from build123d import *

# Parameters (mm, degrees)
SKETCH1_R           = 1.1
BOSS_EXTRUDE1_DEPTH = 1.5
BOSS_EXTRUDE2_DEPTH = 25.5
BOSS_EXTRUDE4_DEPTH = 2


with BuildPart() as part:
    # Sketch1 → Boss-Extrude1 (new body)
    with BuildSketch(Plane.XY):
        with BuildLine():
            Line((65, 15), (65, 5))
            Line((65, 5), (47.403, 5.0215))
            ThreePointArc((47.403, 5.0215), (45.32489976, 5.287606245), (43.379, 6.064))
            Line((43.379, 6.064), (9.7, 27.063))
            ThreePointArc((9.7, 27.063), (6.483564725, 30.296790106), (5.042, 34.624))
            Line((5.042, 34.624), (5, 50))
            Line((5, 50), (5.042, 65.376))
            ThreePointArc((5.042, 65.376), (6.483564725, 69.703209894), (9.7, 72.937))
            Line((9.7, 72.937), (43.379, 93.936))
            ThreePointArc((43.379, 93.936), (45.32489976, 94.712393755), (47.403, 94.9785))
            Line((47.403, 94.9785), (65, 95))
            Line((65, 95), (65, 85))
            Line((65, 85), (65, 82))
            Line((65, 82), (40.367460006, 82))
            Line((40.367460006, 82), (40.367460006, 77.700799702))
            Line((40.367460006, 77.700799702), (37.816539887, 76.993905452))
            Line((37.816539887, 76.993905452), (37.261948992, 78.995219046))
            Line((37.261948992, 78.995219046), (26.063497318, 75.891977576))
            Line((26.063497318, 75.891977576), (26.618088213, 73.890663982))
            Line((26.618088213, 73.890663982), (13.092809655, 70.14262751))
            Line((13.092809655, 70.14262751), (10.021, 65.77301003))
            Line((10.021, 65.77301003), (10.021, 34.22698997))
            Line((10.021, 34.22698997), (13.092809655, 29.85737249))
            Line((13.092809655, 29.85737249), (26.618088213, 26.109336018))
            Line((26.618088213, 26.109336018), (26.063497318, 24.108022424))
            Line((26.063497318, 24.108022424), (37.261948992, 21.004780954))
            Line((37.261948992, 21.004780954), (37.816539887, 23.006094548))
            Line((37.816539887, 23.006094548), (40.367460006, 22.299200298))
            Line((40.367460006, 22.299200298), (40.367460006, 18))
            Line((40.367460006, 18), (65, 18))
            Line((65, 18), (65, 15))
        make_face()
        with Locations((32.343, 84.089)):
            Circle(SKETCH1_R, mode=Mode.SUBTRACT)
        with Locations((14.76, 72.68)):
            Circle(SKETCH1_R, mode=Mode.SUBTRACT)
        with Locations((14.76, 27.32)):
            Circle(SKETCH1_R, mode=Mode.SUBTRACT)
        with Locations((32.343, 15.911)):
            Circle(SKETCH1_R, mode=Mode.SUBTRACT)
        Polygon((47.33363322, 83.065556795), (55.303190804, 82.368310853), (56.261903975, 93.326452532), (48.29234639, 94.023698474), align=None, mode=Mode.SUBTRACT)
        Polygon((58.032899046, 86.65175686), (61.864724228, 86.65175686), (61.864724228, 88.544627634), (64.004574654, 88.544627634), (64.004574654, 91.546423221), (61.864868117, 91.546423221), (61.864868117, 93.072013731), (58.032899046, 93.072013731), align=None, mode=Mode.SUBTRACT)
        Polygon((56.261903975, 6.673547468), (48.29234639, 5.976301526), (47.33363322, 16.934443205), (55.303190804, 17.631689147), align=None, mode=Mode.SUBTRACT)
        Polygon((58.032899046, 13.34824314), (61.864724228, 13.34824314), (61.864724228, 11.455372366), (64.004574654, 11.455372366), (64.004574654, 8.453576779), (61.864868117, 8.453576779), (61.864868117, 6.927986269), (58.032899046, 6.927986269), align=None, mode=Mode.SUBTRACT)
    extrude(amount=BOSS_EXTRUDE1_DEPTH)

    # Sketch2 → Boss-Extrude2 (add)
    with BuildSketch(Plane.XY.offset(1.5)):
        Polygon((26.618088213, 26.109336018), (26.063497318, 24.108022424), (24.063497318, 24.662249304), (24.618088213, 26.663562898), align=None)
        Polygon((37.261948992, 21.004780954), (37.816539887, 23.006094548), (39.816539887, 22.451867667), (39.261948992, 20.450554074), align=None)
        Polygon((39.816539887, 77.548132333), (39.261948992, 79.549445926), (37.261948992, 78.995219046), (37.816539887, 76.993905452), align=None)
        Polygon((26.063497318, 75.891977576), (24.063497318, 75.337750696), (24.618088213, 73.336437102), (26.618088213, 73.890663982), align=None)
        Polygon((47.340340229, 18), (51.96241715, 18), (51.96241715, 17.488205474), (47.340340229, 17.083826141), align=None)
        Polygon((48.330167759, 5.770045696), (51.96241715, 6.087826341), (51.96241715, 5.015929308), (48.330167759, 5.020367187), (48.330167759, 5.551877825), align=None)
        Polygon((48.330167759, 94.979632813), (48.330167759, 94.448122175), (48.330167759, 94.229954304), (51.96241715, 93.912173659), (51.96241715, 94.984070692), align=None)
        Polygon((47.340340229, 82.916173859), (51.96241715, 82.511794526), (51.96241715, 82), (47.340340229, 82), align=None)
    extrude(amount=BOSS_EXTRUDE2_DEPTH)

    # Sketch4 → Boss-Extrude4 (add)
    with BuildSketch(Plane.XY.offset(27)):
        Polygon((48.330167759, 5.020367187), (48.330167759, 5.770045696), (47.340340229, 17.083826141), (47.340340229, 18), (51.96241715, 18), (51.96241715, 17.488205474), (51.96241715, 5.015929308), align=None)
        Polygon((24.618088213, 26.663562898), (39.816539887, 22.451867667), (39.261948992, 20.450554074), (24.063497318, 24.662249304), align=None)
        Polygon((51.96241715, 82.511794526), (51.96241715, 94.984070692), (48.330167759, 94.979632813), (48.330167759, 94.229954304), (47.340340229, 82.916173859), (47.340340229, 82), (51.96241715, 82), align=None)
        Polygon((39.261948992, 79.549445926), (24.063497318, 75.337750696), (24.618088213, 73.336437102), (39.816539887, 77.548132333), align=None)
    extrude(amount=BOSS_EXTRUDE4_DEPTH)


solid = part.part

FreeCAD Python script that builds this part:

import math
import FreeCAD as App
import Part
import Sketcher
Q = App.Units.Quantity


def add_polygon(sketch, points):
    """Adds a closed chain of lines whose ends are joined by coincident constraints."""
    first, n = sketch.GeometryCount, len(points)
    for a, b in zip(points, points[1:] + points[:1]):
        sketch.addGeometry(Part.LineSegment(App.Vector(*a, 0), App.Vector(*b, 0)), False)
    for i in range(n):
        sketch.addConstraint(Sketcher.Constraint("Coincident", first + i, 2, first + (i + 1) % n, 1))

doc = App.newDocument("Part")
body = doc.addObject("PartDesign::Body", "Body")

# Sketch on XY plane
sketch1 = body.newObject("Sketcher::SketchObject", "Sketch")
sketch1.AttachmentSupport = (doc.getObject("XY_Plane"), [""])
sketch1.MapMode = "FlatFace"
sketch1.addGeometry(Part.LineSegment(App.Vector(47.403, 5.0215, 0), App.Vector(65, 5, 0)), False)  # 0
sketch1.addGeometry(Part.LineSegment(App.Vector(65, 5, 0), App.Vector(65, 18, 0)), False)  # 1
sketch1.addGeometry(Part.LineSegment(App.Vector(65, 18, 0), App.Vector(40.36746, 18, 0)), False)  # 2
sketch1.addGeometry(Part.LineSegment(App.Vector(40.36746, 18, 0), App.Vector(40.36746, 22.2992, 0)), False)  # 3
sketch1.addGeometry(Part.LineSegment(App.Vector(40.36746, 22.2992, 0), App.Vector(37.81654, 23.006095, 0)), False)  # 4
sketch1.addGeometry(Part.LineSegment(App.Vector(37.81654, 23.006095, 0), App.Vector(37.261949, 21.004781, 0)), False)  # 5
sketch1.addGeometry(Part.LineSegment(App.Vector(37.261949, 21.004781, 0), App.Vector(26.063497, 24.108022, 0)), False)  # 6
sketch1.addGeometry(Part.LineSegment(App.Vector(26.063497, 24.108022, 0), App.Vector(26.618088, 26.109336, 0)), False)  # 7
sketch1.addGeometry(Part.LineSegment(App.Vector(26.618088, 26.109336, 0), App.Vector(13.09281, 29.857372, 0)), False)  # 8
sketch1.addGeometry(Part.LineSegment(App.Vector(13.09281, 29.857372, 0), App.Vector(10.021, 34.22699, 0)), False)  # 9
sketch1.addGeometry(Part.LineSegment(App.Vector(10.021, 34.22699, 0), App.Vector(10.021, 65.77301, 0)), False)  # 10
sketch1.addGeometry(Part.LineSegment(App.Vector(10.021, 65.77301, 0), App.Vector(13.09281, 70.142628, 0)), False)  # 11
sketch1.addGeometry(Part.LineSegment(App.Vector(13.09281, 70.142628, 0), App.Vector(26.618088, 73.890664, 0)), False)  # 12
sketch1.addGeometry(Part.LineSegment(App.Vector(26.618088, 73.890664, 0), App.Vector(26.063497, 75.891978, 0)), False)  # 13
sketch1.addGeometry(Part.LineSegment(App.Vector(26.063497, 75.891978, 0), App.Vector(37.261949, 78.995219, 0)), False)  # 14
sketch1.addGeometry(Part.LineSegment(App.Vector(37.261949, 78.995219, 0), App.Vector(37.81654, 76.993905, 0)), False)  # 15
sketch1.addGeometry(Part.LineSegment(App.Vector(37.81654, 76.993905, 0), App.Vector(40.36746, 77.7008, 0)), False)  # 16
sketch1.addGeometry(Part.LineSegment(App.Vector(40.36746, 77.7008, 0), App.Vector(40.36746, 82, 0)), False)  # 17
sketch1.addGeometry(Part.LineSegment(App.Vector(40.36746, 82, 0), App.Vector(65, 82, 0)), False)  # 18
sketch1.addGeometry(Part.LineSegment(App.Vector(65, 82, 0), App.Vector(65, 95, 0)), False)  # 19
sketch1.addGeometry(Part.LineSegment(App.Vector(65, 95, 0), App.Vector(47.403, 94.9785, 0)), False)  # 20
sketch1.addGeometry(Part.ArcOfCircle(Part.Circle(App.Vector(47.413174, 86.651757, 0), App.Vector(0, 0, 1), 8.326749), math.radians(90.070004), math.radians(118.978646)), False)  # 21
sketch1.addGeometry(Part.LineSegment(App.Vector(43.379, 93.936, 0), App.Vector(9.7, 72.937, 0)), False)  # 22
sketch1.addGeometry(Part.ArcOfCircle(Part.Circle(App.Vector(14.979802, 64.469051, 0), App.Vector(0, 0, 1), 9.979102), math.radians(121.943715), math.radians(174.785488)), False)  # 23
sketch1.addGeometry(Part.LineSegment(App.Vector(5.042, 65.376, 0), App.Vector(5, 50, 0)), False)  # 24
sketch1.addGeometry(Part.LineSegment(App.Vector(5, 50, 0), App.Vector(5.042, 34.624, 0)), False)  # 25
sketch1.addGeometry(Part.ArcOfCircle(Part.Circle(App.Vector(14.979802, 35.530949, 0), App.Vector(0, 0, 1), 9.979102), math.radians(-174.785488), math.radians(-121.943715)), False)  # 26
sketch1.addGeometry(Part.LineSegment(App.Vector(9.7, 27.063, 0), App.Vector(43.379, 6.064, 0)), False)  # 27
sketch1.addGeometry(Part.ArcOfCircle(Part.Circle(App.Vector(47.413174, 13.348243, 0), App.Vector(0, 0, 1), 8.326749), math.radians(-118.978646), math.radians(-90.070004)), False)  # 28
add_polygon(sketch1, [(58.032899, 13.348243), (61.864724, 13.348243), (61.864724, 11.455372), (64.004575, 11.455372), (64.004575, 8.453577), (61.864868, 8.453577), (61.864868, 6.927986), (58.032899, 6.927986)])  # lines 29-36
add_polygon(sketch1, [(56.261904, 6.673547), (48.292346, 5.976302), (47.333633, 16.934443), (55.303191, 17.631689)])  # lines 37-40
sketch1.addGeometry(Part.Circle(App.Vector(32.343, 15.911, 0), App.Vector(0, 0, 1), 1.1), False)  # 41
sketch1.addGeometry(Part.Circle(App.Vector(14.76, 27.32, 0), App.Vector(0, 0, 1), 1.1), False)  # 42
add_polygon(sketch1, [(58.032899, 86.651757), (58.032899, 93.072014), (61.864868, 93.072014), (61.864868, 91.546423), (64.004575, 91.546423), (64.004575, 88.544628), (61.864724, 88.544628), (61.864724, 86.651757)])  # lines 43-50
add_polygon(sketch1, [(47.333633, 83.065557), (48.292346, 94.023698), (56.261904, 93.326453), (55.303191, 82.368311)])  # lines 51-54
sketch1.addGeometry(Part.Circle(App.Vector(32.343, 84.089, 0), App.Vector(0, 0, 1), 1.1), False)  # 55
sketch1.addGeometry(Part.Circle(App.Vector(14.76, 72.68, 0), App.Vector(0, 0, 1), 1.1), False)  # 56
sketch1.addConstraint([
    Sketcher.Constraint("Coincident", 0, 2, 1, 1),
    Sketcher.Constraint("Coincident", 1, 2, 2, 1),
    Sketcher.Constraint("Coincident", 2, 2, 3, 1),
    Sketcher.Constraint("Coincident", 3, 2, 4, 1),
    Sketcher.Constraint("Coincident", 4, 2, 5, 1),
    Sketcher.Constraint("Coincident", 5, 2, 6, 1),
    Sketcher.Constraint("Coincident", 6, 2, 7, 1),
    Sketcher.Constraint("Coincident", 7, 2, 8, 1),
    Sketcher.Constraint("Coincident", 8, 2, 9, 1),
    Sketcher.Constraint("Coincident", 9, 2, 10, 1),
    Sketcher.Constraint("Coincident", 10, 2, 11, 1),
    Sketcher.Constraint("Coincident", 11, 2, 12, 1),
    Sketcher.Constraint("Coincident", 12, 2, 13, 1),
    Sketcher.Constraint("Coincident", 13, 2, 14, 1),
    Sketcher.Constraint("Coincident", 14, 2, 15, 1),
    Sketcher.Constraint("Coincident", 15, 2, 16, 1),
    Sketcher.Constraint("Coincident", 16, 2, 17, 1),
    Sketcher.Constraint("Coincident", 17, 2, 18, 1),
    Sketcher.Constraint("Coincident", 18, 2, 19, 1),
    Sketcher.Constraint("Coincident", 19, 2, 20, 1),
    Sketcher.Constraint("Tangent", 20, 2, 21, 1),
    Sketcher.Constraint("Coincident", 21, 2, 22, 1),
    Sketcher.Constraint("Tangent", 22, 2, 23, 1),
    Sketcher.Constraint("Coincident", 23, 2, 24, 1),
    Sketcher.Constraint("Coincident", 24, 2, 25, 1),
    Sketcher.Constraint("Coincident", 25, 2, 26, 1),
    Sketcher.Constraint("Tangent", 26, 2, 27, 1),
    Sketcher.Constraint("Coincident", 27, 2, 28, 1),
    Sketcher.Constraint("Tangent", 28, 2, 0, 1),
    Sketcher.Constraint("Vertical", 1),
    Sketcher.Constraint("Horizontal", 2),
    Sketcher.Constraint("Vertical", 3),
    Sketcher.Constraint("Vertical", 10),
    Sketcher.Constraint("Vertical", 17),
    Sketcher.Constraint("Horizontal", 18),
    Sketcher.Constraint("Vertical", 19),
    Sketcher.Constraint("Horizontal", 29),
    Sketcher.Constraint("Vertical", 30),
    Sketcher.Constraint("Horizontal", 31),
    Sketcher.Constraint("Vertical", 32),
    Sketcher.Constraint("Horizontal", 33),
    Sketcher.Constraint("Vertical", 34),
    Sketcher.Constraint("Horizontal", 35),
    Sketcher.Constraint("Vertical", 36),
    Sketcher.Constraint("Vertical", 43),
    Sketcher.Constraint("Horizontal", 44),
    Sketcher.Constraint("Vertical", 45),
    Sketcher.Constraint("Horizontal", 46),
    Sketcher.Constraint("Vertical", 47),
    Sketcher.Constraint("Horizontal", 48),
    Sketcher.Constraint("Vertical", 49),
    Sketcher.Constraint("Horizontal", 50),
    Sketcher.Constraint("Equal", 23, 26),
    Sketcher.Constraint("Equal", 21, 28),
    Sketcher.Constraint("Equal", 41, 42),
    Sketcher.Constraint("Equal", 42, 55),
    Sketcher.Constraint("Equal", 55, 56),
    Sketcher.Constraint("Perpendicular", 4, 5),
    Sketcher.Constraint("Perpendicular", 5, 6),
    Sketcher.Constraint("Perpendicular", 6, 7),
    Sketcher.Constraint("Perpendicular", 7, 8),
    Sketcher.Constraint("Perpendicular", 12, 13),
    Sketcher.Constraint("Perpendicular", 13, 14),
    Sketcher.Constraint("Perpendicular", 14, 15),
    Sketcher.Constraint("Perpendicular", 15, 16),
    Sketcher.Constraint("Perpendicular", 37, 38),
    Sketcher.Constraint("Perpendicular", 38, 39),
    Sketcher.Constraint("Perpendicular", 39, 40),
    Sketcher.Constraint("Perpendicular", 51, 52),
    Sketcher.Constraint("Perpendicular", 52, 53),
    Sketcher.Constraint("Perpendicular", 53, 54),
    Sketcher.Constraint("Horizontal", 28, 3, 29, 2),
    Sketcher.Constraint("Horizontal", 21, 3, 49, 2),
    Sketcher.Constraint("Vertical", 23, 3, 26, 3),
    Sketcher.Constraint("Vertical", 21, 3, 28, 3),
    Sketcher.Constraint("Vertical", 41, 3, 55, 3),
    Sketcher.Constraint("Vertical", 42, 3, 56, 3),
    Sketcher.Constraint("Vertical", 8, 2, 11, 2),
    Sketcher.Constraint("Vertical", 7, 2, 12, 2),
    Sketcher.Constraint("Vertical", 6, 2, 13, 2),
    Sketcher.Constraint("Vertical", 5, 2, 14, 2),
    Sketcher.Constraint("Vertical", 4, 2, 15, 2),
    Sketcher.Constraint("Vertical", 3, 2, 16, 2),
    Sketcher.Constraint("Vertical", 1, 2, 18, 2),
    Sketcher.Constraint("Vertical", 23, 2, 25, 2),
    Sketcher.Constraint("Vertical", 22, 2, 26, 2),
    Sketcher.Constraint("Vertical", 21, 2, 27, 2),
    Sketcher.Constraint("Vertical", 20, 2, 28, 2),
    Sketcher.Constraint("Vertical", 36, 2, 43, 2),
    Sketcher.Constraint("Vertical", 34, 2, 44, 2),
    Sketcher.Constraint("Vertical", 32, 2, 46, 2),
    Sketcher.Constraint("Vertical", 30, 2, 48, 2),
    Sketcher.Constraint("Vertical", 37, 2, 51, 2),
    Sketcher.Constraint("Vertical", 40, 2, 52, 2),
    Sketcher.Constraint("Vertical", 39, 2, 53, 2),
    Sketcher.Constraint("Equal", 3, 17),
    Sketcher.Constraint("Equal", 1, 19),
    Sketcher.Constraint("Equal", 36, 43),
    Sketcher.Constraint("Equal", 34, 45),
    Sketcher.Constraint("Equal", 32, 47),
    Sketcher.Constraint("Equal", 5, 7),
    Sketcher.Constraint("Equal", 9, 11),
    Sketcher.Constraint("Equal", 8, 12),
    Sketcher.Constraint("Equal", 24, 25),
    Sketcher.Constraint("Equal", 40, 51),
    Sketcher.Constraint("Diameter", 41, 2.2),
    Sketcher.Constraint("DistanceY", 1, 1, 1, 2, 13.0),
    Sketcher.Constraint("Angle", 37, Q("-175 deg")),
    Sketcher.Constraint("Distance", 37, 8.0),
    Sketcher.Constraint("Distance", 38, 11.0),
    Sketcher.Constraint("DistanceX", -1, 1, 0, 2, 65.0),
    Sketcher.Constraint("DistanceY", -1, 1, 0, 2, 5.0),
    Sketcher.Constraint("DistanceY", -1, 1, 17, 2, 82.0),
    Sketcher.Constraint("DistanceX", -1, 1, 24, 2, 5.0),
    Sketcher.Constraint("DistanceX", -1, 1, 22, 2, 9.7),
    Sketcher.Constraint("Angle", 0, Q("-0.070004 deg")),
    Sketcher.Constraint("Radius", 23, 9.979102),
    Sketcher.Constraint("DistanceX", -1, 1, 42, 3, 14.76),
    Sketcher.Constraint("DistanceY", -1, 1, 42, 3, 27.32),
    Sketcher.Constraint("DistanceY", -1, 1, 56, 3, 72.68),
    Sketcher.Constraint("Radius", 21, 8.326749),
    Sketcher.Constraint("DistanceY", 3, 1, 3, 2, 4.2992),
    Sketcher.Constraint("DistanceX", -1, 1, 41, 3, 32.343),
    Sketcher.Constraint("DistanceY", -1, 1, 41, 3, 15.911),
    Sketcher.Constraint("DistanceY", -1, 1, 55, 3, 84.089),
    Sketcher.Constraint("DistanceX", -1, 1, 9, 2, 10.021),
    Sketcher.Constraint("DistanceX", -1, 1, 20, 2, 47.403),
    Sketcher.Constraint("DistanceX", -1, 1, 21, 2, 43.379),
    Sketcher.Constraint("DistanceY", -1, 1, 22, 2, 72.937),
    Sketcher.Constraint("DistanceX", -1, 1, 23, 2, 5.042),
    Sketcher.Constraint("DistanceX", 2, 2, 2, 1, 24.63254),
    Sketcher.Constraint("DistanceX", 31, 1, 31, 2, 2.13985),
    Sketcher.Constraint("DistanceX", 35, 2, 35, 1, 3.831969),
    Sketcher.Constraint("DistanceY", 10, 1, 10, 2, 31.54602),
    Sketcher.Constraint("DistanceY", 30, 2, 30, 1, 1.892871),
    Sketcher.Constraint("DistanceY", 34, 2, 34, 1, 1.525591),
    Sketcher.Constraint("DistanceX", -1, 1, 35, 2, 58.032899),
    Sketcher.Constraint("DistanceY", -1, 1, 37, 2, 5.976302),
    Sketcher.Constraint("DistanceY", -1, 1, 51, 2, 94.023698),
    Sketcher.Constraint("Distance", 8, 14.03499),
    Sketcher.Constraint("Distance", 9, 5.341308),
    Sketcher.Constraint("DistanceX", 29, 1, 29, 2, 3.831825),
    Sketcher.Constraint("DistanceY", 32, 2, 32, 1, 3.001796),
    Sketcher.Constraint("DistanceX", -1, 1, 4, 2, 37.81654),
    Sketcher.Constraint("DistanceX", -1, 1, 5, 2, 37.261949),
    Sketcher.Constraint("DistanceY", -1, 1, 5, 2, 21.004781),
    Sketcher.Constraint("DistanceX", -1, 1, 39, 2, 55.303191),
])
pad1 = body.newObject("PartDesign::Pad", "Pad")
pad1.Profile = sketch1
pad1.Length = 1.5

# Sketch on XY plane
sketch2 = body.newObject("Sketcher::SketchObject", "Sketch001")
sketch2.AttachmentSupport = (doc.getObject("XY_Plane"), [""])
sketch2.MapMode = "FlatFace"
sketch2.AttachmentOffset = App.Placement(App.Vector(0, 0, 1.5), App.Rotation())
add_polygon(sketch2, [(26.063497, 24.108022), (26.618088, 26.109336), (24.618088, 26.663563), (24.063497, 24.662249)])  # lines 0-3
add_polygon(sketch2, [(37.81654, 23.006095), (37.261949, 21.004781), (39.261949, 20.450554), (39.81654, 22.451868)])  # lines 4-7
add_polygon(sketch2, [(39.81654, 77.548132), (39.261949, 79.549446), (37.261949, 78.995219), (37.81654, 76.993905)])  # lines 8-11
add_polygon(sketch2, [(26.063497, 75.891978), (24.063497, 75.337751), (24.618088, 73.336437), (26.618088, 73.890664)])  # lines 12-15
add_polygon(sketch2, [(51.962417, 18), (47.34034, 18), (47.34034, 17.083826), (51.962417, 17.488205)])  # lines 16-19
add_polygon(sketch2, [(51.962417, 6.087826), (48.330168, 5.770046), (48.330168, 5.020367), (51.962417, 5.015929)])  # lines 20-23
add_polygon(sketch2, [(48.330168, 94.979633), (48.330168, 94.229954), (51.962417, 93.912174), (51.962417, 94.984071)])  # lines 24-27
add_polygon(sketch2, [(51.962417, 82.511795), (47.34034, 82.916174), (47.34034, 82), (51.962417, 82)])  # lines 28-31
sketch2.addConstraint([
    Sketcher.Constraint("Horizontal", 16),
    Sketcher.Constraint("Vertical", 17),
    Sketcher.Constraint("Vertical", 19),
    Sketcher.Constraint("Vertical", 21),
    Sketcher.Constraint("Vertical", 23),
    Sketcher.Constraint("Vertical", 24),
    Sketcher.Constraint("Vertical", 26),
    Sketcher.Constraint("Vertical", 29),
    Sketcher.Constraint("Horizontal", 30),
    Sketcher.Constraint("Vertical", 31),
    Sketcher.Constraint("Perpendicular", 0, 1),
    Sketcher.Constraint("Perpendicular", 1, 2),
    Sketcher.Constraint("Perpendicular", 2, 3),
    Sketcher.Constraint("Perpendicular", 3, 4),
    Sketcher.Constraint("Perpendicular", 4, 5),
    Sketcher.Constraint("Perpendicular", 5, 6),
    Sketcher.Constraint("Perpendicular", 6, 7),
    Sketcher.Constraint("Perpendicular", 8, 9),
    Sketcher.Constraint("Perpendicular", 9, 10),
    Sketcher.Constraint("Perpendicular", 10, 11),
    Sketcher.Constraint("Parallel", 11, 12),
    Sketcher.Constraint("Perpendicular", 12, 13),
    Sketcher.Constraint("Perpendicular", 13, 14),
    Sketcher.Constraint("Perpendicular", 14, 15),
    Sketcher.Constraint("Parallel", 18, 20),
    Sketcher.Constraint("Parallel", 25, 28),
    Sketcher.Constraint("Vertical", 5, 2, 8, 2),
    Sketcher.Constraint("Vertical", 4, 2, 9, 2),
    Sketcher.Constraint("Vertical", 7, 2, 10, 2),
    Sketcher.Constraint("Vertical", 2, 2, 12, 2),
    Sketcher.Constraint("Vertical", 1, 2, 13, 2),
    Sketcher.Constraint("Vertical", 0, 2, 14, 2),
    Sketcher.Constraint("Vertical", 19, 2, 22, 2),
    Sketcher.Constraint("Vertical", 21, 2, 24, 2),
    Sketcher.Constraint("Vertical", 23, 2, 25, 2),
    Sketcher.Constraint("Vertical", 17, 2, 28, 2),
    Sketcher.Constraint("Vertical", 26, 2, 30, 2),
    Sketcher.Constraint("Equal", 21, 24),
    Sketcher.Constraint("Equal", 23, 26),
    Sketcher.Constraint("Equal", 17, 29),
    Sketcher.Constraint("Equal", 19, 31),
    Sketcher.Constraint("Equal", 2, 4),
    Sketcher.Constraint("Equal", 3, 5),
    Sketcher.Constraint("Equal", 6, 8),
    Sketcher.Constraint("Angle", 18, Q("5 deg")),
    Sketcher.Constraint("DistanceY", -1, 1, 16, 2, 18.0),
    Sketcher.Constraint("DistanceY", -1, 1, 29, 2, 82.0),
    Sketcher.Constraint("DistanceX", 1, 2, 0, 2, 2.0),
    Sketcher.Constraint("Angle", 22, Q("-0.070004 deg")),
    Sketcher.Constraint("DistanceY", 21, 2, 21, 1, 0.749679),
    Sketcher.Constraint("DistanceX", 6, 2, 16, 2, 7.5238),
    Sketcher.Constraint("DistanceY", 11, 2, 27, 2, 17.4315),
    Sketcher.Constraint("Distance", 1, 2.075372),
    Sketcher.Constraint("DistanceX", 16, 2, 16, 1, 4.622077),
    Sketcher.Constraint("DistanceY", 17, 2, 17, 1, 0.916174),
    Sketcher.Constraint("DistanceY", 23, 1, 23, 2, 1.071897),
    Sketcher.Constraint("DistanceX", -1, 1, 0, 2, 26.618088),
    Sketcher.Constraint("DistanceY", -1, 1, 2, 2, 24.662249),
    Sketcher.Constraint("DistanceX", -1, 1, 4, 2, 37.261949),
    Sketcher.Constraint("DistanceY", -1, 1, 4, 2, 21.004781),
    Sketcher.Constraint("DistanceX", -1, 1, 6, 2, 39.81654),
    Sketcher.Constraint("DistanceY", -1, 1, 9, 2, 78.995219),
    Sketcher.Constraint("DistanceY", -1, 1, 12, 2, 75.337751),
    Sketcher.Constraint("DistanceY", -1, 1, 22, 2, 5.015929),
])
pad2 = body.newObject("PartDesign::Pad", "Pad001")
pad2.Profile = sketch2
pad2.Length = 25.5

# Sketch on XY plane
sketch3 = body.newObject("Sketcher::SketchObject", "Sketch002")
sketch3.AttachmentSupport = (doc.getObject("XY_Plane"), [""])
sketch3.MapMode = "FlatFace"
sketch3.AttachmentOffset = App.Placement(App.Vector(0, 0, 27), App.Rotation())
add_polygon(sketch3, [(48.330168, 5.770046), (48.330168, 5.020367), (51.962417, 5.015929), (51.962417, 18), (47.34034, 18), (47.34034, 17.083826)])  # lines 0-5
add_polygon(sketch3, [(39.81654, 22.451868), (24.618088, 26.663563), (24.063497, 24.662249), (39.261949, 20.450554)])  # lines 6-9
add_polygon(sketch3, [(51.962417, 94.984071), (48.330168, 94.979633), (48.330168, 94.229954), (47.34034, 82.916174), (47.34034, 82), (51.962417, 82)])  # lines 10-15
add_polygon(sketch3, [(39.261949, 79.549446), (24.063497, 75.337751), (24.618088, 73.336437), (39.81654, 77.548132)])  # lines 16-19
sketch3.addConstraint([
    Sketcher.Constraint("Vertical", 0),
    Sketcher.Constraint("Vertical", 2),
    Sketcher.Constraint("Horizontal", 3),
    Sketcher.Constraint("Vertical", 4),
    Sketcher.Constraint("Vertical", 11),
    Sketcher.Constraint("Vertical", 13),
    Sketcher.Constraint("Horizontal", 14),
    Sketcher.Constraint("Vertical", 15),
    Sketcher.Constraint("Perpendicular", 6, 7),
    Sketcher.Constraint("Perpendicular", 7, 8),
    Sketcher.Constraint("Perpendicular", 8, 9),
    Sketcher.Constraint("Perpendicular", 16, 17),
    Sketcher.Constraint("Perpendicular", 17, 18),
    Sketcher.Constraint("Perpendicular", 18, 19),
    Sketcher.Constraint("Vertical", 5, 2, 10, 2),
    Sketcher.Constraint("Vertical", 4, 2, 12, 2),
    Sketcher.Constraint("Vertical", 2, 2, 14, 2),
    Sketcher.Constraint("Vertical", 7, 2, 16, 2),
    Sketcher.Constraint("Vertical", 6, 2, 17, 2),
    Sketcher.Constraint("Vertical", 9, 2, 18, 2),
    Sketcher.Constraint("Equal", 0, 11),
    Sketcher.Constraint("Equal", 4, 13),
    Sketcher.Constraint("Equal", 2, 15),
    Sketcher.Constraint("Equal", 5, 12),
    Sketcher.Constraint("Equal", 8, 16),
    Sketcher.Constraint("Angle", 5, Q("-85 deg")),
    Sketcher.Constraint("DistanceY", -1, 1, 2, 2, 18.0),
    Sketcher.Constraint("DistanceY", -1, 1, 13, 2, 82.0),
    Sketcher.Constraint("Angle", 1, Q("-0.070004 deg")),
    Sketcher.Constraint("DistanceY", 0, 2, 0, 1, 0.749679),
    Sketcher.Constraint("DistanceY", 2, 1, 2, 2, 12.984071),
    Sketcher.Constraint("DistanceX", 9, 2, 3, 2, 7.5238),
    Sketcher.Constraint("DistanceY", 8, 2, 11, 2, 73.7794),
    Sketcher.Constraint("DistanceX", 3, 2, 3, 1, 4.622077),
    Sketcher.Constraint("DistanceY", 4, 2, 4, 1, 0.916174),
    Sketcher.Constraint("DistanceX", -1, 1, 3, 2, 47.34034),
    Sketcher.Constraint("DistanceX", -1, 1, 6, 2, 24.618088),
    Sketcher.Constraint("DistanceY", -1, 1, 7, 2, 24.662249),
    Sketcher.Constraint("DistanceX", -1, 1, 8, 2, 39.261949),
    Sketcher.Constraint("DistanceY", -1, 1, 16, 2, 75.337751),
])
pad3 = body.newObject("PartDesign::Pad", "Pad002")
pad3.Profile = sketch3
pad3.Length = 2

doc.recompute()
